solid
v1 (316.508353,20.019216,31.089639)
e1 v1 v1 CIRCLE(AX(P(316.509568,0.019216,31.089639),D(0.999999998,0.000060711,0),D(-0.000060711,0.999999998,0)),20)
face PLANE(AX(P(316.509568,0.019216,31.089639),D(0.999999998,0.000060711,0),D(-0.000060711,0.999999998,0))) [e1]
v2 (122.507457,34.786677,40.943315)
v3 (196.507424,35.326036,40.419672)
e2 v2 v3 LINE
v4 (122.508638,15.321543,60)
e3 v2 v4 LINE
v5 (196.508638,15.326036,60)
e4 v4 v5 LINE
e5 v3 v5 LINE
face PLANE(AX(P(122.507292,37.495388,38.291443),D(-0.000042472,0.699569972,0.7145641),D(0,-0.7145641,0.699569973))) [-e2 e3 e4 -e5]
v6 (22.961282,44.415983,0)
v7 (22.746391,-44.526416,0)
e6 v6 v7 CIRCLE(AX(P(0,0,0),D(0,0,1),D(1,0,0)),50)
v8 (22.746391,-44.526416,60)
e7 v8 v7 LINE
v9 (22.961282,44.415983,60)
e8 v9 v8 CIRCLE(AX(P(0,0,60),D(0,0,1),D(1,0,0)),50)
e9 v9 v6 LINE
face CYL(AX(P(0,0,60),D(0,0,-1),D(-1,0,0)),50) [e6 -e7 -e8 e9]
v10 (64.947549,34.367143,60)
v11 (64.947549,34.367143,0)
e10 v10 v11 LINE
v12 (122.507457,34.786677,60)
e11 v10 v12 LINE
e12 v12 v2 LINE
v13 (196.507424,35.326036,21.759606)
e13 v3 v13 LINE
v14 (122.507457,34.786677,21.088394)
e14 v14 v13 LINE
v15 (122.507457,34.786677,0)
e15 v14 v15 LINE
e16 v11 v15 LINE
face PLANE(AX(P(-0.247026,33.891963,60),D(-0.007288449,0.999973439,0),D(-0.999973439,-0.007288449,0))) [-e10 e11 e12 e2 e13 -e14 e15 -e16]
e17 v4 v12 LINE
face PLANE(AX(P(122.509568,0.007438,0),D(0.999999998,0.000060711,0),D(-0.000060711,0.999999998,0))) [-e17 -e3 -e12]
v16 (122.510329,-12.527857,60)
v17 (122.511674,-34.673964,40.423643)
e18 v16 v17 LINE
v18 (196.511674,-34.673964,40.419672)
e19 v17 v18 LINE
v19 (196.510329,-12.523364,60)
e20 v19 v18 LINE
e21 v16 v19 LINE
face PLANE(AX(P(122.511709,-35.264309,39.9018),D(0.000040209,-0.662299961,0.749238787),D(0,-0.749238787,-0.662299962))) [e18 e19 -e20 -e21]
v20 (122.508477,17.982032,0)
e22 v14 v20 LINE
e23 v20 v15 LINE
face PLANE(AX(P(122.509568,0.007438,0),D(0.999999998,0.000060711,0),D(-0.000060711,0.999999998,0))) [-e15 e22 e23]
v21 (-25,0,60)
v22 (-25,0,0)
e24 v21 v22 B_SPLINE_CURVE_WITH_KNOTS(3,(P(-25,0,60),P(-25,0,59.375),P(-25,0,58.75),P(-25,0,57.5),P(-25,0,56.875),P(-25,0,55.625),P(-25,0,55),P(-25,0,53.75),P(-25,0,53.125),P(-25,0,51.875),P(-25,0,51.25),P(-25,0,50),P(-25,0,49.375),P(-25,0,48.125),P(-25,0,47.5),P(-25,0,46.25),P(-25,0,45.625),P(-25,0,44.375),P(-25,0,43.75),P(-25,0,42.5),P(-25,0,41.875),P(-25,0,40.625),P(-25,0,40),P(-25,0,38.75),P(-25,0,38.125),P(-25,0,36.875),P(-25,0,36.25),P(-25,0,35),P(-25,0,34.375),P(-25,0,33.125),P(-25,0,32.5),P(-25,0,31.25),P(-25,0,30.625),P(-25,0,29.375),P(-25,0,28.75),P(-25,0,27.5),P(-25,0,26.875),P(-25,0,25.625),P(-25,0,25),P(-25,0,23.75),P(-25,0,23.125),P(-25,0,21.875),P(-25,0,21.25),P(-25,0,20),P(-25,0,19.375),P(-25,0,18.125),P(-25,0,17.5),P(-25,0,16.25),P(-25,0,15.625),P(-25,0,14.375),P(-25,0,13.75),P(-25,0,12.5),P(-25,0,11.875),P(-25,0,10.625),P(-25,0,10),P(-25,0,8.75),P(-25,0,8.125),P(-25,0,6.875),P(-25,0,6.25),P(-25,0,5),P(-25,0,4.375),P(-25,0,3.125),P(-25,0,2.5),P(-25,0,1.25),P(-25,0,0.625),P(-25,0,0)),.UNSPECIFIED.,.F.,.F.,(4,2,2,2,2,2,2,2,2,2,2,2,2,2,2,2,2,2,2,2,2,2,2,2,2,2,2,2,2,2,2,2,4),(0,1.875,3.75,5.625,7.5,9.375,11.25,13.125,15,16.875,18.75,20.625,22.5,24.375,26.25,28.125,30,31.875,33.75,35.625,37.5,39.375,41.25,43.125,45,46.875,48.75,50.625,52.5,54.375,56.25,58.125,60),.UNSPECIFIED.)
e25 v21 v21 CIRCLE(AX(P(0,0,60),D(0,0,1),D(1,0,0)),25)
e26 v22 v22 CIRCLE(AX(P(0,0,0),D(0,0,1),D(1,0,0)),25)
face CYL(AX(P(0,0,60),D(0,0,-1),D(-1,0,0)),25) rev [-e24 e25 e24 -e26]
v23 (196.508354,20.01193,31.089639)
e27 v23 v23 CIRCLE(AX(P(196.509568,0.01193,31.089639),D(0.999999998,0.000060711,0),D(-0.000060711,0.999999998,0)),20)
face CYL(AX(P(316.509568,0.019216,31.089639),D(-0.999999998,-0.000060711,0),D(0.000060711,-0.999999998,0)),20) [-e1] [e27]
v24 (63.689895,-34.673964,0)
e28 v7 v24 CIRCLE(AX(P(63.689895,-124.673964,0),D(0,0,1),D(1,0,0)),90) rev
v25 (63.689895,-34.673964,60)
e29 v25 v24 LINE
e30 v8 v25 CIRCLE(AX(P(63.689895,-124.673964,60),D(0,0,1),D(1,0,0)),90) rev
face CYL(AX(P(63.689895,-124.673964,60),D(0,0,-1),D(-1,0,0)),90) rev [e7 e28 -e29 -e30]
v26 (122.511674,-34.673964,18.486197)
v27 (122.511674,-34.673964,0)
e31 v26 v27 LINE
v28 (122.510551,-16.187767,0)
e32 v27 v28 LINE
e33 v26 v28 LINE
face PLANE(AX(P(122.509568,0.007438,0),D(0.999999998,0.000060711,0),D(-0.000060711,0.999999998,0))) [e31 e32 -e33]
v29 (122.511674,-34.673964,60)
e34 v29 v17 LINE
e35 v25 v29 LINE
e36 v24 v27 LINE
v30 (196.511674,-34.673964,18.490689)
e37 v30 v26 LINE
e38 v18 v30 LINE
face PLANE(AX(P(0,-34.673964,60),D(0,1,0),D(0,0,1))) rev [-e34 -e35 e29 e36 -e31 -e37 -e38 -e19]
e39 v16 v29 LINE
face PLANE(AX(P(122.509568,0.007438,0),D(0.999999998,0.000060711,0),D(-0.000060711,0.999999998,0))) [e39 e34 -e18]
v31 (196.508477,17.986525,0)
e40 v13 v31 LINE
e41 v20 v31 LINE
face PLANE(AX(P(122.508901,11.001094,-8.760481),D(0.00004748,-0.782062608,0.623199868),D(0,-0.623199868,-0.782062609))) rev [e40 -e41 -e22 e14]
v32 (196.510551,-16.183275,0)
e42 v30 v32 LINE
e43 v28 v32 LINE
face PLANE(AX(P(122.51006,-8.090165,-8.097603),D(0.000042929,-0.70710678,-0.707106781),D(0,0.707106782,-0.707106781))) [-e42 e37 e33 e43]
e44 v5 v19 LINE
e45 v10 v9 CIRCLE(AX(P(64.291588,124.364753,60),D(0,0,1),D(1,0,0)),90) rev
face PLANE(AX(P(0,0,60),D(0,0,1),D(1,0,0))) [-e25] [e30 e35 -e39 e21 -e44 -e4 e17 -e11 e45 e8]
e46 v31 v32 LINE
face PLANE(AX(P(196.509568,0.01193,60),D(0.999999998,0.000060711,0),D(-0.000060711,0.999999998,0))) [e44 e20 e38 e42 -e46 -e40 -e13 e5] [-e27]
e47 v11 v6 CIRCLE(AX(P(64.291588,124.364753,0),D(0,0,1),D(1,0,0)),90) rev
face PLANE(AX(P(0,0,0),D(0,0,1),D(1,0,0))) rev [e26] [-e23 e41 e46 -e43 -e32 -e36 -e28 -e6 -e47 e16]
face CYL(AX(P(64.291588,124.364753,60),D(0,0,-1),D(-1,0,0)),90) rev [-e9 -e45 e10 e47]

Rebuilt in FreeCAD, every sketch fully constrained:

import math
import FreeCAD as App
import Part
import Sketcher


def add_polygon(sketch, points):
    """Adds a closed chain of lines whose ends are joined by coincident constraints."""
    first, n = sketch.GeometryCount, len(points)
    for a, b in zip(points, points[1:] + points[:1]):
        sketch.addGeometry(Part.LineSegment(App.Vector(*a, 0), App.Vector(*b, 0)), False)
    for i in range(n):
        sketch.addConstraint(Sketcher.Constraint("Coincident", first + i, 2, first + (i + 1) % n, 1))

doc = App.newDocument("Part")
params = doc.addObject("Spreadsheet::Sheet", "Params")
for row, (alias, value) in enumerate([
    ("sketch1_diameter", "50 mm"),
    ("sketch1_radius", "90 mm"),
    ("sketch1_radius2", "50 mm"),
    ("sketch1_length", "70 mm"),
    ("pad1_length", "60 mm"),
    ("sketch2_height", "20 mm"),
    ("pocket1_length", "74 mm"),
    ("sketch3_diameter", "40 mm"),
    ("pad2_length", "120 mm"),
], start=1):
    params.set(f"A{row}", alias)
    params.set(f"B{row}", "=" + value)
    params.setAlias(f"B{row}", alias)

body = doc.addObject("PartDesign::Body", "Body")

# Sketch on XY plane
sketch1 = body.newObject("Sketcher::SketchObject", "Sketch")
sketch1.AttachmentSupport = (doc.getObject("XY_Plane"), [""])
sketch1.MapMode = "FlatFace"
sketch1.addGeometry([
    Part.LineSegment(App.Vector(197, 35, 0), App.Vector(65, 34, 0)),  # 0
    Part.ArcOfCircle(Part.Circle(App.Vector(64, 124, 0), App.Vector(0, 0, 1), 90), math.radians(-117), math.radians(-90)),  # 1
    Part.ArcOfCircle(Part.Circle(App.Vector(0, 0, 0), App.Vector(0, 0, 1), 50), math.radians(63), math.radians(297)),  # 2
    Part.ArcOfCircle(Part.Circle(App.Vector(64, -125, 0), App.Vector(0, 0, 1), 90), math.radians(90), math.radians(117)),  # 3
    Part.LineSegment(App.Vector(64, -35, 0), App.Vector(197, -35, 0)),  # 4
    Part.LineSegment(App.Vector(197, -35, 0), App.Vector(197, 35, 0)),  # 5
    Part.Circle(App.Vector(0, 0, 0), App.Vector(0, 0, 1), 25),  # 6
], False)
sketch1.addConstraint([
    Sketcher.Constraint("Tangent", 0, 2, 1, 2),
    Sketcher.Constraint("Tangent", 1, 1, 2, 1),
    Sketcher.Constraint("Tangent", 2, 2, 3, 2),
    Sketcher.Constraint("Tangent", 3, 1, 4, 1),
    Sketcher.Constraint("Coincident", 4, 2, 5, 1),
    Sketcher.Constraint("Coincident", 5, 2, 0, 1),
    Sketcher.Constraint("Horizontal", 4),
    Sketcher.Constraint("Coincident", 2, 3, -1, 1),
    Sketcher.Constraint("Coincident", 6, 3, -1, 1),
    Sketcher.Constraint("Equal", 1, 3),
    Sketcher.Constraint("Diameter", 6, 50.0),
    Sketcher.Constraint("Radius", 1, 90.0),
    Sketcher.Constraint("Radius", 2, 50.0),
    Sketcher.Constraint("Distance", 5, 70.0),
    Sketcher.Constraint("DistanceX", 4, 1, 4, 2, 132.821779),
    Sketcher.Constraint("DistanceY", 2, 2, 1, 1, 88.942399),
    Sketcher.Constraint("Distance", 0, 131.56337),
    Sketcher.Constraint("DistanceX", -1, 1, 1, 3, 64.291588),
])
sketch1.setExpression("Constraints[10]", "Params.sketch1_diameter")
sketch1.setExpression("Constraints[11]", "Params.sketch1_radius")
sketch1.setExpression("Constraints[12]", "Params.sketch1_radius2")
sketch1.setExpression("Constraints[13]", "Params.sketch1_length")
pad1 = body.newObject("PartDesign::Pad", "Pad")
pad1.Profile = sketch1
pad1.setExpression("Length", "Params.pad1_length")

# Sketch on an angled plane
sketch2 = body.newObject("Sketcher::SketchObject", "Sketch001")
sketch2.Placement = App.Placement(App.Vector(196.509568, 0.01193, 0), App.Rotation(App.Vector(0, 0, -1), App.Vector(-0.000060711, 0.999999998, 0), App.Vector(0.999999998, 0.000060711, 0), "ZXY"))
add_polygon(sketch2, [(-60, 15), (-40, 35), (-60, 35)])  # lines 0-2
add_polygon(sketch2, [(0, 35), (-22, 35), (0, 18)])  # lines 3-5
add_polygon(sketch2, [(-40, -35), (-60, -13), (-60, -35)])  # lines 6-8
add_polygon(sketch2, [(0, -35), (0, -16), (-18, -35)])  # lines 9-11
sketch2.addConstraint([
    Sketcher.Constraint("Horizontal", 1),
    Sketcher.Constraint("Vertical", 2),
    Sketcher.Constraint("Horizontal", 3),
    Sketcher.Constraint("Vertical", 5),
    Sketcher.Constraint("Vertical", 7),
    Sketcher.Constraint("Horizontal", 8),
    Sketcher.Constraint("Vertical", 9),
    Sketcher.Constraint("Horizontal", 11),
    Sketcher.Constraint("PointOnObject", 4, 2, -2),
    Sketcher.Constraint("PointOnObject", 9, 2, -2),
    Sketcher.Constraint("Horizontal", 1, 2, 3, 2),
    Sketcher.Constraint("Horizontal", 8, 2, 10, 2),
    Sketcher.Constraint("Vertical", 2, 2, 6, 2),
    Sketcher.Constraint("Vertical", 0, 2, 8, 2),
    Sketcher.Constraint("Equal", 11, 9),
    Sketcher.Constraint("DistanceY", 2, 2, 2, 1, 20.0),
    Sketcher.Constraint("DistanceX", 1, 2, -1, 1, 60.0),
    Sketcher.Constraint("DistanceY", 7, 2, 2, 2, 50.0),
    Sketcher.Constraint("DistanceY", 7, 2, 7, 1, 22.150599),
    Sketcher.Constraint("DistanceX", 1, 2, 1, 1, 19.580328),
    Sketcher.Constraint("DistanceX", 11, 1, 11, 2, 18.490689),
    Sketcher.Constraint("DistanceY", 5, 1, 5, 2, 17.339511),
    Sketcher.Constraint("DistanceX", 3, 2, 3, 1, 21.759606),
    Sketcher.Constraint("DistanceY", -1, 1, 0, 2, 35.314106),
])
sketch2.setExpression("Constraints[27]", "Params.sketch2_height")
pocket1 = body.newObject("PartDesign::Pocket", "Pocket")
pocket1.Profile = sketch2
pocket1.setExpression("Length", "Params.pocket1_length")

# Sketch on an angled plane
sketch3 = body.newObject("Sketcher::SketchObject", "Sketch002")
sketch3.Placement = App.Placement(App.Vector(196.509568, 0.01193, 0), App.Rotation(App.Vector(0, 0, -1), App.Vector(-0.000060711, 0.999999998, 0), App.Vector(0.999999998, 0.000060711, 0), "ZXY"))
sketch3.addGeometry(Part.Circle(App.Vector(-31, 0, 0), App.Vector(0, 0, 1), 20), False)
sketch3.addConstraint([
    Sketcher.Constraint("PointOnObject", 0, 3, -1),
    Sketcher.Constraint("Diameter", 0, 40.0),
    Sketcher.Constraint("DistanceX", 0, 3, -1, 1, 31.089639),
])
sketch3.setExpression("Constraints[1]", "Params.sketch3_diameter")
pad2 = body.newObject("PartDesign::Pad", "Pad001")
pad2.Profile = sketch3
pad2.setExpression("Length", "Params.pad2_length")

doc.recompute()
